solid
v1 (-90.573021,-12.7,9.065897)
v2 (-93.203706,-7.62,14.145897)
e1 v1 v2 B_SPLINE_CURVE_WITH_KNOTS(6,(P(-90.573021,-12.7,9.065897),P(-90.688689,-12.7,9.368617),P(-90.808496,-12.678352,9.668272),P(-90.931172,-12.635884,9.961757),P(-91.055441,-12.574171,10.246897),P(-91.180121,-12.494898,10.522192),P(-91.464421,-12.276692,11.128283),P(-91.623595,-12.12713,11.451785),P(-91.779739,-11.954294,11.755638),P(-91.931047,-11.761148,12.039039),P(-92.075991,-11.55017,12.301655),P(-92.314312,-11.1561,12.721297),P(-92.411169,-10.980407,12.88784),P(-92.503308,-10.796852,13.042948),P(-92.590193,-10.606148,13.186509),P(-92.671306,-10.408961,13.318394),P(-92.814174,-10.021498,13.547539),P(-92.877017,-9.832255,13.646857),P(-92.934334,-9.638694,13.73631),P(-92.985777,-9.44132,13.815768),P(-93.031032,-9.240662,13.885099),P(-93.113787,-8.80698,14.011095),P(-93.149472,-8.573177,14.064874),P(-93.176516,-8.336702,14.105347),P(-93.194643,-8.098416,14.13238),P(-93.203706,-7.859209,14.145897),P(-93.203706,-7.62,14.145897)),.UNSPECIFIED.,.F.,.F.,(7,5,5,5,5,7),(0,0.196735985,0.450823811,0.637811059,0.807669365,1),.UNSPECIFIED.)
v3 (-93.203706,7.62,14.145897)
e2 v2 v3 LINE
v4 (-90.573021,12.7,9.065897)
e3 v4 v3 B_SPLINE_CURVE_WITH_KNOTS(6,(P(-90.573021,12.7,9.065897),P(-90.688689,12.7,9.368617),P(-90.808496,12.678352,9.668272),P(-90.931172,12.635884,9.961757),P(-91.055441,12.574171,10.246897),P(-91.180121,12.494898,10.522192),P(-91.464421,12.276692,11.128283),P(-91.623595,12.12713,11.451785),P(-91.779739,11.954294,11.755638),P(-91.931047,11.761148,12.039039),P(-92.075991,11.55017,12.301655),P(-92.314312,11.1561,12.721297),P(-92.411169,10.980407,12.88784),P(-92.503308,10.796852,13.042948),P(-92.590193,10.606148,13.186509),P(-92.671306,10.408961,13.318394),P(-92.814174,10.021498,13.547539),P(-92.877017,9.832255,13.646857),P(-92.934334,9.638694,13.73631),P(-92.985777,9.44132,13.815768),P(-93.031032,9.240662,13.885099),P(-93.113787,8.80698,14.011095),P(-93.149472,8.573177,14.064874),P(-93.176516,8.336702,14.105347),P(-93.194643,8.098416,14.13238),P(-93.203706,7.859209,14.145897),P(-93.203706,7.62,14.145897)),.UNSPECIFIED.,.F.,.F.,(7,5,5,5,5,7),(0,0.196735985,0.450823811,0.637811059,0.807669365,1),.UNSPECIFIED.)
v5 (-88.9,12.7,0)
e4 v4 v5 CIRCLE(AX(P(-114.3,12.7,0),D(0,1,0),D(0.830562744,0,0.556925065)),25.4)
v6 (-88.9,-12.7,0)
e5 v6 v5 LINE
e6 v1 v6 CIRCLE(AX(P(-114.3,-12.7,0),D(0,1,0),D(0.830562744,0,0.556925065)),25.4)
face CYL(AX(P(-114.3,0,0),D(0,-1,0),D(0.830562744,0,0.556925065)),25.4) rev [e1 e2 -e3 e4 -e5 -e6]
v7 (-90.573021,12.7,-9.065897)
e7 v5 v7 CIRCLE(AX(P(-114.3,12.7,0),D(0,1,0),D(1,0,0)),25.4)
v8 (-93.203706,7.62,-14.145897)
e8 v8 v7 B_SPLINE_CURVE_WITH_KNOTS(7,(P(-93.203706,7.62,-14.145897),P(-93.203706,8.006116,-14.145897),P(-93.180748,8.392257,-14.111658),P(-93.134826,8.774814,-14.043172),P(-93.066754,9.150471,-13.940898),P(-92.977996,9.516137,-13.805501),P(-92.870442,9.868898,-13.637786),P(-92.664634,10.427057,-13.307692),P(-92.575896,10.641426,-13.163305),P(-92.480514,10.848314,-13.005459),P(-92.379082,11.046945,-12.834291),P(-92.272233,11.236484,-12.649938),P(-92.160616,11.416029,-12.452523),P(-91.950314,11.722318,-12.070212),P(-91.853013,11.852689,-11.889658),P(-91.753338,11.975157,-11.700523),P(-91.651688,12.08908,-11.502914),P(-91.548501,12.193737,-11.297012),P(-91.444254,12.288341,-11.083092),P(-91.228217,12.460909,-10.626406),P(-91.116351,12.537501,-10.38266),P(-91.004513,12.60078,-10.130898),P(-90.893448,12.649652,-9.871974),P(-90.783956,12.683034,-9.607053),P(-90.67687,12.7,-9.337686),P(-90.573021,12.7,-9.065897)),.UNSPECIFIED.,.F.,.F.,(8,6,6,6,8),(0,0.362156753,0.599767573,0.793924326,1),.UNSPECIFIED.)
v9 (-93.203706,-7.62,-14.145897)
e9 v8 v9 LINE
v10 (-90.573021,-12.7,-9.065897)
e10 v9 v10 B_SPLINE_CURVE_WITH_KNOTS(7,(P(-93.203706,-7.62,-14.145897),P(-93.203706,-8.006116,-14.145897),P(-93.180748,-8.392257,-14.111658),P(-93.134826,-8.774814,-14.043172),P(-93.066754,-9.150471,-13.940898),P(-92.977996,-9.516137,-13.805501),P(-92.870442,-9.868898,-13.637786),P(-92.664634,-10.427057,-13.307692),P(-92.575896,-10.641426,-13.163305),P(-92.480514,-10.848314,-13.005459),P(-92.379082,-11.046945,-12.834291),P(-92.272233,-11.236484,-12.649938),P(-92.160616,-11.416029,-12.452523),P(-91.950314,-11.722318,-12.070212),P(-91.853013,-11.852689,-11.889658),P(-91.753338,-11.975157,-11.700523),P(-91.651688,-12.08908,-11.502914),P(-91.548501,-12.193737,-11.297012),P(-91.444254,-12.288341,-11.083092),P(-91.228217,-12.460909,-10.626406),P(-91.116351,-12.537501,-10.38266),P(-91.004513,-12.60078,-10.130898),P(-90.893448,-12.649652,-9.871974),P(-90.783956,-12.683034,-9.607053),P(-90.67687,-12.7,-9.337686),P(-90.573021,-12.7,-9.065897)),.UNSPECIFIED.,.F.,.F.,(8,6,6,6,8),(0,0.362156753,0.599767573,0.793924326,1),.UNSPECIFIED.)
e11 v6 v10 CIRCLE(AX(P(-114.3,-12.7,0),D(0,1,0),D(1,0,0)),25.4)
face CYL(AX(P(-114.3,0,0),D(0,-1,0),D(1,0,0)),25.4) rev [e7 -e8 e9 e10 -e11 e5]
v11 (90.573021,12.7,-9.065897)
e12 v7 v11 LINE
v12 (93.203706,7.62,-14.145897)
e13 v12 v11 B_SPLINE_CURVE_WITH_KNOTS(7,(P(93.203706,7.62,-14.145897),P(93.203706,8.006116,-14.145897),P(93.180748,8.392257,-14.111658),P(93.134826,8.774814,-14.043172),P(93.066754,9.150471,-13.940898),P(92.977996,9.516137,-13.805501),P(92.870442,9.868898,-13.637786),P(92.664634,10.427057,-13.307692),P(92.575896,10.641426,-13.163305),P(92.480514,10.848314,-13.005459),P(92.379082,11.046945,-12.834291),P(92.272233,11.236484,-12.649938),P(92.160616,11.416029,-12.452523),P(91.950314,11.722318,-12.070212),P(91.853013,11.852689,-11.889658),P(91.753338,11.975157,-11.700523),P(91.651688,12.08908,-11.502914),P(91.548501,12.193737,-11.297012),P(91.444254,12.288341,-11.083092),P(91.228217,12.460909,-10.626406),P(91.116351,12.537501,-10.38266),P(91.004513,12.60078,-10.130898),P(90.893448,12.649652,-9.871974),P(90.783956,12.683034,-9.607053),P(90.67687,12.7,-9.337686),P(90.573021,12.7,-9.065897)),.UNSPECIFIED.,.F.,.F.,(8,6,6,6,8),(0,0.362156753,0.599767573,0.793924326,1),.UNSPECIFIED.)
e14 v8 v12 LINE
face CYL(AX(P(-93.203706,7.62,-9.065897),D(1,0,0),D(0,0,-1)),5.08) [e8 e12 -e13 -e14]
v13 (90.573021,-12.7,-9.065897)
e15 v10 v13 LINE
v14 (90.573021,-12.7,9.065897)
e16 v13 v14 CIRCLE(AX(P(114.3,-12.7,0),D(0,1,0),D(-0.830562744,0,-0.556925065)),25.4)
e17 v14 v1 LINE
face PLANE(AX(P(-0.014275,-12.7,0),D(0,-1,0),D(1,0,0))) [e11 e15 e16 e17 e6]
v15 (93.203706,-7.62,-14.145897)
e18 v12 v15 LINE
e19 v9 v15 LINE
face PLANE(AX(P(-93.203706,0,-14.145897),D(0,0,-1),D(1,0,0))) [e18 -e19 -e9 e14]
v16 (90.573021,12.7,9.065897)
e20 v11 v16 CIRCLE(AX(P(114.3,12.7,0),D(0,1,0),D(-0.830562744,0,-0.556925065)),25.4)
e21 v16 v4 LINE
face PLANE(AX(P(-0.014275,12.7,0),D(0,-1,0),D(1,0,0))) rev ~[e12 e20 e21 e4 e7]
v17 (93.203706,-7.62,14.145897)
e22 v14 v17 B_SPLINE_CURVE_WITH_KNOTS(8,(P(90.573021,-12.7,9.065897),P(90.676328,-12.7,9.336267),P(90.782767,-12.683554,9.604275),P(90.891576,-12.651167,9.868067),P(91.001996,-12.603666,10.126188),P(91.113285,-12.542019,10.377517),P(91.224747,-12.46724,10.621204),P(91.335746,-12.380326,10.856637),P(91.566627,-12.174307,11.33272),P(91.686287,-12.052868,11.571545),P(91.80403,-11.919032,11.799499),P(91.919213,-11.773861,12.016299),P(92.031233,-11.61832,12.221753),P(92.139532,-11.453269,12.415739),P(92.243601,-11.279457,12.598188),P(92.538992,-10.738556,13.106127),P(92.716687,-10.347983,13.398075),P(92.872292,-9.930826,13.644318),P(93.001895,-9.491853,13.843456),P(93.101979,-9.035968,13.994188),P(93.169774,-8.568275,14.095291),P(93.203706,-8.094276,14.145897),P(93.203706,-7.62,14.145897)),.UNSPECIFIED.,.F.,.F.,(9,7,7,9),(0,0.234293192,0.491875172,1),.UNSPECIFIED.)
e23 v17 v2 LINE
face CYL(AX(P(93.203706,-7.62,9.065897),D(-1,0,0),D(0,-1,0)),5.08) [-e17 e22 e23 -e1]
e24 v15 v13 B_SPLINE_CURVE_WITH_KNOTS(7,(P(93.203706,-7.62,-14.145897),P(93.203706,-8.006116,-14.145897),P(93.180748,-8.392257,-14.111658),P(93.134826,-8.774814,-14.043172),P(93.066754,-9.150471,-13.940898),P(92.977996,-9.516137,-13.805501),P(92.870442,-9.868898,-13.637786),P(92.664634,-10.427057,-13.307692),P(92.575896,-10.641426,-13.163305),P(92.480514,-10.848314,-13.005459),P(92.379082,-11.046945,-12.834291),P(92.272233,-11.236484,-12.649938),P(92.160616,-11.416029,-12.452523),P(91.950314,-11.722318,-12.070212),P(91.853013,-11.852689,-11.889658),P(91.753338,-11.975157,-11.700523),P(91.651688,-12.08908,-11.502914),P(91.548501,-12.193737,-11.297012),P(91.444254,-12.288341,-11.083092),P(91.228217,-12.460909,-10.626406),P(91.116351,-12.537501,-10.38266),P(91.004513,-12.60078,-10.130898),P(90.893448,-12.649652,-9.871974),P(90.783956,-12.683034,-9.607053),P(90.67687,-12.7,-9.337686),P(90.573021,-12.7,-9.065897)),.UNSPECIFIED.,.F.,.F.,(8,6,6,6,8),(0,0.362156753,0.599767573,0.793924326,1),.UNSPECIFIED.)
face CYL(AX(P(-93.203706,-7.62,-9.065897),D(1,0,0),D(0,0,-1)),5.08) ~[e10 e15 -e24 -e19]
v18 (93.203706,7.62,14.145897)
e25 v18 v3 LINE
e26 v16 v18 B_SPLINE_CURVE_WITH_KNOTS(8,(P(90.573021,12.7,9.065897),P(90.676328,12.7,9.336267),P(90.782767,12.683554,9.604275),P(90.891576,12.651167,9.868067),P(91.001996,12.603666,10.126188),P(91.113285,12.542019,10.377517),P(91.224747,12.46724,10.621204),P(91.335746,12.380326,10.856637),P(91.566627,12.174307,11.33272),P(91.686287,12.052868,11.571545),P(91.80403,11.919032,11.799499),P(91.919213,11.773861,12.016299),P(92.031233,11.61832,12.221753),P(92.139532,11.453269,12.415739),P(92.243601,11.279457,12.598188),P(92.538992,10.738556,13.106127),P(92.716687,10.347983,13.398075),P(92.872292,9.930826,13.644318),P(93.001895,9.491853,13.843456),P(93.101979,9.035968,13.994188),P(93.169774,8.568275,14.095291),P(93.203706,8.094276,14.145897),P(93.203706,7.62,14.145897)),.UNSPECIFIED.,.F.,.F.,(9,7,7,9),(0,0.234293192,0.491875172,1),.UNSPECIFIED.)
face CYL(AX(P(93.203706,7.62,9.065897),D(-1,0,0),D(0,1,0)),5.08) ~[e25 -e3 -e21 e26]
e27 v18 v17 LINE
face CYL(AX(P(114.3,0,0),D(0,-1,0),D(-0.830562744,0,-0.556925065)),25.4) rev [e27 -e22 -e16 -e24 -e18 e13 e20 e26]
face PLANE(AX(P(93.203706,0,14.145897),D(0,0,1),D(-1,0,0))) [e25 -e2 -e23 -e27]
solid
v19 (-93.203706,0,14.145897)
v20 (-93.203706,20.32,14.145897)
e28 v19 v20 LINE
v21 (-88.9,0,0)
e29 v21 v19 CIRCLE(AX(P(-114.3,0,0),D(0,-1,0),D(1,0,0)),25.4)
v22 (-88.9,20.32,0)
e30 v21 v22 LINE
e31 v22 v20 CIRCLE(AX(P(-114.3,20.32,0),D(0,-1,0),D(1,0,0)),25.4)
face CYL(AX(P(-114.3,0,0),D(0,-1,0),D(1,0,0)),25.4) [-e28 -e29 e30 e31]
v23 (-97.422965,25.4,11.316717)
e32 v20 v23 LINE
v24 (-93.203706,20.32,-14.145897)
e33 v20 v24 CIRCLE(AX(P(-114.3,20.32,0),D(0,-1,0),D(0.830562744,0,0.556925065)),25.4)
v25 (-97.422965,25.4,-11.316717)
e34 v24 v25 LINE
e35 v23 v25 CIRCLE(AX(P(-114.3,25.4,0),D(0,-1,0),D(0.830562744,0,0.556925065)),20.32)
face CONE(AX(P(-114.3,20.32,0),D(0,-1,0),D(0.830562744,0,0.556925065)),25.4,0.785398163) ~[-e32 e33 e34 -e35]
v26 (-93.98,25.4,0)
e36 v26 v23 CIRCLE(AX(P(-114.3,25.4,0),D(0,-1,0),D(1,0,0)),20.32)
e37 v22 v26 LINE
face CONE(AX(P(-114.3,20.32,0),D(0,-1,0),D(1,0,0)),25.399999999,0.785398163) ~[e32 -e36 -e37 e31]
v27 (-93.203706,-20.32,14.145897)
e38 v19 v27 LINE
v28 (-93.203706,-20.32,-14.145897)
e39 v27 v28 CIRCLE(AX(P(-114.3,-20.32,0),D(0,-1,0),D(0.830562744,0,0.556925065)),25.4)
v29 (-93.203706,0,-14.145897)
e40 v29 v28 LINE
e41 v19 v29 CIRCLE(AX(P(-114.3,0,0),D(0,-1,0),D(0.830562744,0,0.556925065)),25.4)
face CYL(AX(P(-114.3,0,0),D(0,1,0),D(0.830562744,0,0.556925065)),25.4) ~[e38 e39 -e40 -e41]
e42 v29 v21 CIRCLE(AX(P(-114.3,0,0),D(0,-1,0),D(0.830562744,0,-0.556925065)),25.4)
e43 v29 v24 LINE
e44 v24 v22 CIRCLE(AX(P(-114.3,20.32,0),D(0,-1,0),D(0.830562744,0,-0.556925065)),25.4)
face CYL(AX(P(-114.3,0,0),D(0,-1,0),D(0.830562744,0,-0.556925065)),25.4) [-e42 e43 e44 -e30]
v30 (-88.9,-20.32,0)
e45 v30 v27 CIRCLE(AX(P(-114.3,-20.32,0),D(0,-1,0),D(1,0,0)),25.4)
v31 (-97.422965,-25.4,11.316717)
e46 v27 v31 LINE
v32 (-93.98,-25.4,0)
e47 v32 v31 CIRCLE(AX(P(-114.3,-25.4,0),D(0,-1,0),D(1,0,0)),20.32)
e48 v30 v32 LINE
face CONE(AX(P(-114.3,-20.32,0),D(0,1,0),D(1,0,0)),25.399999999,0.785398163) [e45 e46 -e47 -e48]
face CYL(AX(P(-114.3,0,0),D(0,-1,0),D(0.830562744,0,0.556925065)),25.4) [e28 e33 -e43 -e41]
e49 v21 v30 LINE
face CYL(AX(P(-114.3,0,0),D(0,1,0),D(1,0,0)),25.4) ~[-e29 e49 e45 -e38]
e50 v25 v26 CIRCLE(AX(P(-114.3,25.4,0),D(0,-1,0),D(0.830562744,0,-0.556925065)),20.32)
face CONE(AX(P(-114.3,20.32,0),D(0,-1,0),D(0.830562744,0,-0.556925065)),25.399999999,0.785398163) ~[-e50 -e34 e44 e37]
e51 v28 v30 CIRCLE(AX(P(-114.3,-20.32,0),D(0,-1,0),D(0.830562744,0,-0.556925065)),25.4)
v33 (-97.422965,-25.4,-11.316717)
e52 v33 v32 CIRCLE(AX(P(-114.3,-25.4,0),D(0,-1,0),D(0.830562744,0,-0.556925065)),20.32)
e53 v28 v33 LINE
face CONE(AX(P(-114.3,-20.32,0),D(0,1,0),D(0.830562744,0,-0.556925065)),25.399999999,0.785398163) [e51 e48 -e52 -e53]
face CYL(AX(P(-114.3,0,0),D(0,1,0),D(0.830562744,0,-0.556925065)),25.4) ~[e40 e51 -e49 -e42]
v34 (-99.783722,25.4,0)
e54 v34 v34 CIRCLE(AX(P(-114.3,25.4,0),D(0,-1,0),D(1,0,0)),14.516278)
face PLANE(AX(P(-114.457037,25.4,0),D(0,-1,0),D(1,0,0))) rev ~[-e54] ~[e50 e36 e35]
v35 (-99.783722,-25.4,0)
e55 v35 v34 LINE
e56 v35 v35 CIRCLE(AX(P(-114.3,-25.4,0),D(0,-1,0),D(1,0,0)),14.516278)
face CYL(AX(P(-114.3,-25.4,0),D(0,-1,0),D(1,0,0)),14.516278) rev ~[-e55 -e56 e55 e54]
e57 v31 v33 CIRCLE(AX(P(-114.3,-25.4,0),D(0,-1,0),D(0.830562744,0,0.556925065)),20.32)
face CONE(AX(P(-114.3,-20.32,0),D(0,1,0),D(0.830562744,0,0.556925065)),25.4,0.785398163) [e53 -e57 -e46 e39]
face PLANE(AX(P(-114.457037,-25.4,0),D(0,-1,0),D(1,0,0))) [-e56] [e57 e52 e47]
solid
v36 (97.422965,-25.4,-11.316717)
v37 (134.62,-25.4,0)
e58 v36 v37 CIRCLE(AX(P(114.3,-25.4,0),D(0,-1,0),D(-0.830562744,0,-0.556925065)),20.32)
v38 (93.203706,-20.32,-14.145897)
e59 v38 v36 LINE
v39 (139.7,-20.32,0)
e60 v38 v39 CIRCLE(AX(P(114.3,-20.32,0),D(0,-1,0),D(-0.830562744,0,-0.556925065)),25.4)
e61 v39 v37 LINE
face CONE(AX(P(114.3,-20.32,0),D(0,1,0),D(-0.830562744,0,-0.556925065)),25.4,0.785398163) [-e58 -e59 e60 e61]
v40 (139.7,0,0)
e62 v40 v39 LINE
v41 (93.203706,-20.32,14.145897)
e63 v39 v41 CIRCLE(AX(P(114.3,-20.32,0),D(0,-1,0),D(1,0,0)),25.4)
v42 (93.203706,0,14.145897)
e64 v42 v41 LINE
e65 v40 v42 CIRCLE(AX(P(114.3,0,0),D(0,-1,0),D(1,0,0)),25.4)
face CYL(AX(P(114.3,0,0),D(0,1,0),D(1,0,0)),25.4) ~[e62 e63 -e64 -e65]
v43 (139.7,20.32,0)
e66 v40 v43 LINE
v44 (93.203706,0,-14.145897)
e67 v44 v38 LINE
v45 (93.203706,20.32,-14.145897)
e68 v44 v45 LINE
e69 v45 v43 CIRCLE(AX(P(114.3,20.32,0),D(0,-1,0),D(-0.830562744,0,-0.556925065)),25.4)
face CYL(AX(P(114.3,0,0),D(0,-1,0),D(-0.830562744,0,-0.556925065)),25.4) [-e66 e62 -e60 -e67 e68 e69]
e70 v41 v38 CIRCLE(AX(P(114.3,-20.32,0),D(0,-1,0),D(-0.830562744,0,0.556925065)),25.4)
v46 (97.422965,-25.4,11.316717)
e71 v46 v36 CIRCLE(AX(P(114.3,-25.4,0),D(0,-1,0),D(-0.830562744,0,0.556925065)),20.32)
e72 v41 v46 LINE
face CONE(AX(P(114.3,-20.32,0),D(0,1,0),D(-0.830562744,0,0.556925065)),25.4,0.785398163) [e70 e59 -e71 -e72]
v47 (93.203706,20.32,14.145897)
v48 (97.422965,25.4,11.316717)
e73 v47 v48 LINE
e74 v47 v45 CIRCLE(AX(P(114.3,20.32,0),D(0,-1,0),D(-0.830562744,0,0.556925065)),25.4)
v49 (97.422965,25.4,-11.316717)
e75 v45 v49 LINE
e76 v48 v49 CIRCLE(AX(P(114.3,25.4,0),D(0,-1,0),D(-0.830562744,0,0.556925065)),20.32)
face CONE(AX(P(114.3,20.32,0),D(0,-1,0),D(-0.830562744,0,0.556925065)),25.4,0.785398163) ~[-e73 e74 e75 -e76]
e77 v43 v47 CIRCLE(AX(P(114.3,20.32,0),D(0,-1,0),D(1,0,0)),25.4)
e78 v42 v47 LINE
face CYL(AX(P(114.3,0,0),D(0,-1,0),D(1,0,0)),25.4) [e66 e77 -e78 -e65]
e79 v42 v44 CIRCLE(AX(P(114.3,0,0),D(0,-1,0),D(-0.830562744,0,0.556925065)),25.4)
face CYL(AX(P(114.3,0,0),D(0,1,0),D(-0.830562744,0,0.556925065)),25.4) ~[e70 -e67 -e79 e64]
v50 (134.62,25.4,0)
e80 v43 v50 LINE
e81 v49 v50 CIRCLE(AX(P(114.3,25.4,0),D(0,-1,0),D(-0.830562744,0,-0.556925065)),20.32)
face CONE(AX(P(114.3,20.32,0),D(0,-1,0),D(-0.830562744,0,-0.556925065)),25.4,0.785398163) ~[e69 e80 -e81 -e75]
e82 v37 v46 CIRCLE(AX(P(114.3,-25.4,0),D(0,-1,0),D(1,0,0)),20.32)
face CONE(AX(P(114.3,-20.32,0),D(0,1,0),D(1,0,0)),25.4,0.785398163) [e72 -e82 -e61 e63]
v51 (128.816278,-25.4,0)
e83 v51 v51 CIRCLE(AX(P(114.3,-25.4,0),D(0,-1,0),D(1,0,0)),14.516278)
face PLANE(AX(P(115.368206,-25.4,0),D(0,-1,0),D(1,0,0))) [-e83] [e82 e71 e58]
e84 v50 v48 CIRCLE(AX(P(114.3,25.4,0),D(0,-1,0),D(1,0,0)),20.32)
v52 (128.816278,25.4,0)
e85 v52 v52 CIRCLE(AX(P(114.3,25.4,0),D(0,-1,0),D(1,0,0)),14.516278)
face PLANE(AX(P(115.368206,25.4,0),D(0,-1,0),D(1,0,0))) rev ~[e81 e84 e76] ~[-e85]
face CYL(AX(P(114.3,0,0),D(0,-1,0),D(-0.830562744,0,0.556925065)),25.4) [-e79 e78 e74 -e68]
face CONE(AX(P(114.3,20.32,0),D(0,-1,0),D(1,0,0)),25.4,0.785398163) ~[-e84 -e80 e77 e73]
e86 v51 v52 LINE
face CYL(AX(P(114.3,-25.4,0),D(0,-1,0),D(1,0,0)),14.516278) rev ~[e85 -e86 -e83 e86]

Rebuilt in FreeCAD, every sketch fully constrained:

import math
import FreeCAD as App
import Part
import Sketcher
Q = App.Units.Quantity


def edges_at(feature, points):
    """Names of the edges that pass closest to the given points."""
    edges = feature.Shape.Edges
    near = lambda p: min(range(len(edges)), key=lambda i: edges[i].distToShape(Part.Vertex(*p))[0])
    return sorted({f"Edge{near(p) + 1}" for p in points})

doc = App.newDocument("Part")
body = doc.addObject("PartDesign::Body", "Body")

# Sketch on XZ plane
sketch1 = body.newObject("Sketcher::SketchObject", "Sketch")
sketch1.AttachmentSupport = (doc.getObject("XZ_Plane"), [""])
sketch1.MapMode = "FlatFace"
sketch1.addGeometry([
    Part.ArcOfCircle(Part.Circle(App.Vector(-114, 0, 0), App.Vector(0, 0, 1), 25), math.radians(-34), math.radians(0)),  # 0
    Part.LineSegment(App.Vector(-93, -14, 0), App.Vector(93, -14, 0)),  # 1
    Part.ArcOfCircle(Part.Circle(App.Vector(114, 0, 0), App.Vector(0, 0, 1), 25), math.radians(146), math.radians(214)),  # 2
    Part.LineSegment(App.Vector(93, 14, 0), App.Vector(-93, 14, 0)),  # 3
    Part.ArcOfCircle(Part.Circle(App.Vector(-114, 0, 0), App.Vector(0, 0, 1), 25), math.radians(0), math.radians(34)),  # 4
], False)
sketch1.addConstraint([
    Sketcher.Constraint("Coincident", 0, 1, 1, 1),
    Sketcher.Constraint("Coincident", 1, 2, 2, 2),
    Sketcher.Constraint("Coincident", 2, 1, 3, 1),
    Sketcher.Constraint("Coincident", 3, 2, 4, 2),
    Sketcher.Constraint("Tangent", 4, 1, 0, 2),
    Sketcher.Constraint("Horizontal", 1),
    Sketcher.Constraint("Horizontal", 3),
    Sketcher.Constraint("Equal", 0, 2),
    Sketcher.Constraint("Equal", 2, 4),
    Sketcher.Constraint("Symmetric", 0, 3, 2, 3, -1, 1),
    Sketcher.Constraint("Symmetric", 1, 2, 2, 1, -1),
    Sketcher.Constraint("PointOnObject", 4, 1, -1),
    Sketcher.Constraint("Radius", 0, Q("1 in")),
    Sketcher.Constraint("DistanceX", 0, 3, 2, 3, Q("9 in")),
    Sketcher.Constraint("DistanceX", 1, 1, 1, 2, 186.407413),
])
pad1 = body.newObject("PartDesign::Pad", "Pad")
pad1.Profile = sketch1
pad1.Type = "TwoLengths"
pad1.Length = Q("0.5 in")
pad1.Length2 = Q("0.5 in")
doc.recompute()

fillet = body.newObject("PartDesign::Fillet", "Fillet")
fillet.Base = (pad1, edges_at(pad1, [
    (0, -12.7, 14.146),
    (0, 12.7, 14.146),
    (0, -12.7, -14.146),
    (0, 12.7, -14.146),
]))
fillet.Radius = Q("0.2 in")
body2 = doc.addObject("PartDesign::Body", "Body001")

# Sketch on XZ plane
sketch2 = body2.newObject("Sketcher::SketchObject", "Sketch001")
sketch2.AttachmentSupport = (doc.getObject("XZ_Plane001"), [""])
sketch2.MapMode = "FlatFace"
sketch2.addGeometry([
    Part.ArcOfCircle(Part.Circle(App.Vector(-114, 0, 0), App.Vector(0, 0, 1), 25), math.radians(34), math.radians(326)),
    Part.ArcOfCircle(Part.Circle(App.Vector(-114, 0, 0), App.Vector(0, 0, 1), 25), math.radians(-34), math.radians(0)),
    Part.ArcOfCircle(Part.Circle(App.Vector(-114, 0, 0), App.Vector(0, 0, 1), 25), math.radians(0), math.radians(34)),
], False)
sketch2.addConstraint([
    Sketcher.Constraint("Tangent", 0, 2, 1, 1),
    Sketcher.Constraint("Tangent", 1, 2, 2, 1),
    Sketcher.Constraint("Tangent", 2, 2, 0, 1),
    Sketcher.Constraint("Symmetric", 0, 2, 2, 2, -1),
    Sketcher.Constraint("PointOnObject", 1, 2, -1),
    Sketcher.Constraint("Radius", 0, Q("1 in")),
    Sketcher.Constraint("DistanceX", 0, 3, -1, 1, Q("4.5 in")),
    Sketcher.Constraint("DistanceX", 0, 2, -1, 1, 93.203706),
])
pad2 = body2.newObject("PartDesign::Pad", "Pad001")
pad2.Profile = sketch2
pad2.Type = "TwoLengths"
pad2.Length = Q("1 in")
pad2.Length2 = Q("1 in")

# Sketch on XZ plane
sketch3 = body2.newObject("Sketcher::SketchObject", "Sketch002")
sketch3.AttachmentSupport = (doc.getObject("XZ_Plane001"), [""])
sketch3.MapMode = "FlatFace"
sketch3.AttachmentOffset = App.Placement(App.Vector(0, 0, 1 * 25.4), App.Rotation())
sketch3.addGeometry(Part.Circle(App.Vector(-114, 0, 0), App.Vector(0, 0, 1), 15), False)
sketch3.addConstraint([
    Sketcher.Constraint("PointOnObject", 0, 3, -1),
    Sketcher.Constraint("DistanceX", 0, 3, -1, 1, Q("4.5 in")),
    Sketcher.Constraint("Diameter", 0, 29.032556),
])
pocket1 = body2.newObject("PartDesign::Pocket", "Pocket")
pocket1.Profile = sketch3
pocket1.Type = "ThroughAll"
doc.recompute()

chamfer = body2.newObject("PartDesign::Chamfer", "Chamfer")
chamfer.Base = (pocket1, edges_at(pocket1, [(-139.7, -25.4, 0), (-139.7, 25.4, 0)]))
chamfer.Size = Q("0.2 in")
body3 = doc.addObject("PartDesign::Body", "Body002")

# Sketch on XZ plane
sketch4 = body3.newObject("Sketcher::SketchObject", "Sketch003")
sketch4.AttachmentSupport = (doc.getObject("XZ_Plane002"), [""])
sketch4.MapMode = "FlatFace"
sketch4.addGeometry([
    Part.ArcOfCircle(Part.Circle(App.Vector(114, 0, 0), App.Vector(0, 0, 1), 25), math.radians(-146), math.radians(0)),
    Part.ArcOfCircle(Part.Circle(App.Vector(114, 0, 0), App.Vector(0, 0, 1), 25), math.radians(0), math.radians(146)),
    Part.ArcOfCircle(Part.Circle(App.Vector(114, 0, 0), App.Vector(0, 0, 1), 25), math.radians(146), math.radians(214)),
], False)
sketch4.addConstraint([
    Sketcher.Constraint("Tangent", 0, 2, 1, 1),
    Sketcher.Constraint("Tangent", 1, 2, 2, 1),
    Sketcher.Constraint("Tangent", 2, 2, 0, 1),
    Sketcher.Constraint("Symmetric", 1, 2, 2, 2, -1),
    Sketcher.Constraint("PointOnObject", 0, 2, -1),
    Sketcher.Constraint("Radius", 0, Q("1 in")),
    Sketcher.Constraint("DistanceX", -1, 1, 0, 3, Q("4.5 in")),
    Sketcher.Constraint("DistanceX", -1, 1, 1, 2, 93.203706),
])
pad3 = body3.newObject("PartDesign::Pad", "Pad002")
pad3.Profile = sketch4
pad3.Type = "TwoLengths"
pad3.Length = Q("1 in")
pad3.Length2 = Q("1 in")

# Sketch on XZ plane
sketch5 = body3.newObject("Sketcher::SketchObject", "Sketch004")
sketch5.AttachmentSupport = (doc.getObject("XZ_Plane002"), [""])
sketch5.MapMode = "FlatFace"
sketch5.AttachmentOffset = App.Placement(App.Vector(0, 0, 1 * 25.4), App.Rotation())
sketch5.addGeometry(Part.Circle(App.Vector(114, 0, 0), App.Vector(0, 0, 1), 15), False)
sketch5.addConstraint([
    Sketcher.Constraint("PointOnObject", 0, 3, -1),
    Sketcher.Constraint("DistanceX", -1, 1, 0, 3, Q("4.5 in")),
    Sketcher.Constraint("Diameter", 0, 29.032556),
])
pocket2 = body3.newObject("PartDesign::Pocket", "Pocket001")
pocket2.Profile = sketch5
pocket2.Type = "ThroughAll"
doc.recompute()

chamfer2 = body3.newObject("PartDesign::Chamfer", "Chamfer001")
chamfer2.Base = (pocket2, edges_at(pocket2, [(88.9, -25.4, 0), (88.9, 25.4, 0)]))
chamfer2.Size = Q("0.2 in")

doc.recompute()
